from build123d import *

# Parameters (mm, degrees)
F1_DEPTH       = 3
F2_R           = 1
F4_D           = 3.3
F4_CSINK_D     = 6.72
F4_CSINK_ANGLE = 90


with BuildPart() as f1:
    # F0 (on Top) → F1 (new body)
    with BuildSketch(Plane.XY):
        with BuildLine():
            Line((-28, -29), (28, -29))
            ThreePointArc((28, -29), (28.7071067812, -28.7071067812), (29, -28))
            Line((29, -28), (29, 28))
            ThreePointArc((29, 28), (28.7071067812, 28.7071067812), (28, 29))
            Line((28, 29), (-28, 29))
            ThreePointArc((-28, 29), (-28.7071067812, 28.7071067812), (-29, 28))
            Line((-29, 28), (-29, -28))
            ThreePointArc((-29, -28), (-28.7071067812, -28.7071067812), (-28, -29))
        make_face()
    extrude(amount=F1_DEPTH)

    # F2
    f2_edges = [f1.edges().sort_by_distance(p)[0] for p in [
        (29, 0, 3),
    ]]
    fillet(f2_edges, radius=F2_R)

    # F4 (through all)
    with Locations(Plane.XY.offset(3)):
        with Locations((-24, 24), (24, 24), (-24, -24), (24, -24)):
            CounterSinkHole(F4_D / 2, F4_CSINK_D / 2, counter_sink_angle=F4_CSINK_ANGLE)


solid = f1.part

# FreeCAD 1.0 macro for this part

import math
import FreeCAD as App
import Part
import Sketcher
from FreeCAD import Vector
Q = App.Units.Quantity


def edges_at(feature, points):
    """Names of the edges that pass closest to the given points."""
    edges = feature.Shape.Edges
    near = lambda p: min(range(len(edges)), key=lambda i: edges[i].distToShape(Part.Vertex(*p))[0])
    return sorted({f"Edge{near(p) + 1}" for p in points})

doc = App.newDocument("Part")
params = doc.addObject("Spreadsheet::Sheet", "Params")
for row, (alias, value) in enumerate([
    ("sketch1_radius", "1 mm"),
    ("sketch1_width", "56 mm"),
    ("pad1_length", "3 mm"),
    ("fillet_radius", "1 mm"),
    ("sketch2_diameter", "3.3 mm"),
    ("hole_diameter", "3.3 mm"),
    ("hole_csink_diameter", "6.72 mm"),
], start=1):
    params.set(f"A{row}", alias)
    params.set(f"B{row}", "=" + value)
    params.setAlias(f"B{row}", alias)

body = doc.addObject("PartDesign::Body", "Body")

# Sketch on XY plane
sketch1 = body.newObject("Sketcher::SketchObject", "Sketch")
sketch1.AttachmentSupport = (doc.getObject("XY_Plane"), [""])
sketch1.MapMode = "FlatFace"
sketch1.addGeometry([
    Part.LineSegment(Vector(-28, -29, 0), Vector(28, -29, 0)),  # 0
    Part.ArcOfCircle(Part.Circle(Vector(28, -28, 0), Vector(0, 0, 1), 1), math.radians(-90), math.radians(0)),  # 1
    Part.LineSegment(Vector(29, -28, 0), Vector(29, 28, 0)),  # 2
    Part.ArcOfCircle(Part.Circle(Vector(28, 28, 0), Vector(0, 0, 1), 1), math.radians(0), math.radians(90)),  # 3
    Part.LineSegment(Vector(28, 29, 0), Vector(-28, 29, 0)),  # 4
    Part.ArcOfCircle(Part.Circle(Vector(-28, 28, 0), Vector(0, 0, 1), 1), math.radians(90), math.radians(180)),  # 5
    Part.LineSegment(Vector(-29, 28, 0), Vector(-29, -28, 0)),  # 6
    Part.ArcOfCircle(Part.Circle(Vector(-28, -28, 0), Vector(0, 0, 1), 1), math.radians(180), math.radians(270)),  # 7
], False)
sketch1.addConstraint([
    Sketcher.Constraint("Tangent", 0, 2, 1, 1),
    Sketcher.Constraint("Tangent", 1, 2, 2, 1),
    Sketcher.Constraint("Tangent", 2, 2, 3, 1),
    Sketcher.Constraint("Tangent", 3, 2, 4, 1),
    Sketcher.Constraint("Tangent", 4, 2, 5, 1),
    Sketcher.Constraint("Tangent", 5, 2, 6, 1),
    Sketcher.Constraint("Tangent", 6, 2, 7, 1),
    Sketcher.Constraint("Tangent", 7, 2, 0, 1),
    Sketcher.Constraint("Horizontal", 0),
    Sketcher.Constraint("Vertical", 2),
    Sketcher.Constraint("Horizontal", 4),
    Sketcher.Constraint("Vertical", 6),
    Sketcher.Constraint("Equal", 1, 3),
    Sketcher.Constraint("Equal", 3, 5),
    Sketcher.Constraint("Equal", 5, 7),
    Sketcher.Constraint("Symmetric", 1, 3, 5, 3, -1, 1),
    Sketcher.Constraint("Equal", 4, 2),
    Sketcher.Constraint("Radius", 1, Q("1 mm")),
    Sketcher.Constraint("DistanceX", 0, 1, 0, 2, Q("56 mm")),
])
sketch1.setExpression("Constraints[17]", "Params.sketch1_radius")
sketch1.setExpression("Constraints[18]", "Params.sketch1_width")
pad1 = body.newObject("PartDesign::Pad", "Pad")
pad1.Profile = sketch1
pad1.setExpression("Length", "Params.pad1_length")
doc.recompute()

fillet = body.newObject("PartDesign::Fillet", "Fillet")
fillet.Base = (pad1, edges_at(pad1, [(29, 0, 3)]))
fillet.setExpression("Radius", "Params.fillet_radius")

# Sketch on XY plane
sketch2 = body.newObject("Sketcher::SketchObject", "Sketch001")
sketch2.AttachmentSupport = (doc.getObject("XY_Plane"), [""])
sketch2.MapMode = "FlatFace"
sketch2.AttachmentOffset = App.Placement(Vector(0, 0, 3), App.Rotation())
sketch2.addGeometry([
    Part.Circle(Vector(-24, 24, 0), Vector(0, 0, 1), 1.6),
    Part.Circle(Vector(24, 24, 0), Vector(0, 0, 1), 1.6),
    Part.Circle(Vector(-24, -24, 0), Vector(0, 0, 1), 1.6),
    Part.Circle(Vector(24, -24, 0), Vector(0, 0, 1), 1.6),
], False)
sketch2.addConstraint([
    Sketcher.Constraint("Equal", 0, 1),
    Sketcher.Constraint("Equal", 1, 2),
    Sketcher.Constraint("Equal", 2, 3),
    Sketcher.Constraint("Symmetric", 1, 3, 2, 3, -1, 1),
    Sketcher.Constraint("Symmetric", 0, 3, 3, 3, -1, 1),
    Sketcher.Constraint("Symmetric", 0, 3, 1, 3, -2),
    Sketcher.Constraint("Diameter", 0, Q("3.3 mm")),
    Sketcher.Constraint("DistanceX", 0, 3, -1, 1, Q("24 mm")),
    Sketcher.Constraint("DistanceY", -1, 1, 0, 3, Q("24 mm")),
])
sketch2.setExpression("Constraints[6]", "Params.sketch2_diameter")
doc.recompute()
hole = body.newObject("PartDesign::Hole", "Hole")
hole.Profile = sketch2
hole.ThreadType = "None"
hole.setExpression("Diameter", "Params.hole_diameter")
hole.DepthType = "ThroughAll"
hole.HoleCutType = "Countersink"
hole.setExpression("HoleCutDiameter", "Params.hole_csink_diameter")
hole.HoleCutCountersinkAngle = 90

doc.recompute()
